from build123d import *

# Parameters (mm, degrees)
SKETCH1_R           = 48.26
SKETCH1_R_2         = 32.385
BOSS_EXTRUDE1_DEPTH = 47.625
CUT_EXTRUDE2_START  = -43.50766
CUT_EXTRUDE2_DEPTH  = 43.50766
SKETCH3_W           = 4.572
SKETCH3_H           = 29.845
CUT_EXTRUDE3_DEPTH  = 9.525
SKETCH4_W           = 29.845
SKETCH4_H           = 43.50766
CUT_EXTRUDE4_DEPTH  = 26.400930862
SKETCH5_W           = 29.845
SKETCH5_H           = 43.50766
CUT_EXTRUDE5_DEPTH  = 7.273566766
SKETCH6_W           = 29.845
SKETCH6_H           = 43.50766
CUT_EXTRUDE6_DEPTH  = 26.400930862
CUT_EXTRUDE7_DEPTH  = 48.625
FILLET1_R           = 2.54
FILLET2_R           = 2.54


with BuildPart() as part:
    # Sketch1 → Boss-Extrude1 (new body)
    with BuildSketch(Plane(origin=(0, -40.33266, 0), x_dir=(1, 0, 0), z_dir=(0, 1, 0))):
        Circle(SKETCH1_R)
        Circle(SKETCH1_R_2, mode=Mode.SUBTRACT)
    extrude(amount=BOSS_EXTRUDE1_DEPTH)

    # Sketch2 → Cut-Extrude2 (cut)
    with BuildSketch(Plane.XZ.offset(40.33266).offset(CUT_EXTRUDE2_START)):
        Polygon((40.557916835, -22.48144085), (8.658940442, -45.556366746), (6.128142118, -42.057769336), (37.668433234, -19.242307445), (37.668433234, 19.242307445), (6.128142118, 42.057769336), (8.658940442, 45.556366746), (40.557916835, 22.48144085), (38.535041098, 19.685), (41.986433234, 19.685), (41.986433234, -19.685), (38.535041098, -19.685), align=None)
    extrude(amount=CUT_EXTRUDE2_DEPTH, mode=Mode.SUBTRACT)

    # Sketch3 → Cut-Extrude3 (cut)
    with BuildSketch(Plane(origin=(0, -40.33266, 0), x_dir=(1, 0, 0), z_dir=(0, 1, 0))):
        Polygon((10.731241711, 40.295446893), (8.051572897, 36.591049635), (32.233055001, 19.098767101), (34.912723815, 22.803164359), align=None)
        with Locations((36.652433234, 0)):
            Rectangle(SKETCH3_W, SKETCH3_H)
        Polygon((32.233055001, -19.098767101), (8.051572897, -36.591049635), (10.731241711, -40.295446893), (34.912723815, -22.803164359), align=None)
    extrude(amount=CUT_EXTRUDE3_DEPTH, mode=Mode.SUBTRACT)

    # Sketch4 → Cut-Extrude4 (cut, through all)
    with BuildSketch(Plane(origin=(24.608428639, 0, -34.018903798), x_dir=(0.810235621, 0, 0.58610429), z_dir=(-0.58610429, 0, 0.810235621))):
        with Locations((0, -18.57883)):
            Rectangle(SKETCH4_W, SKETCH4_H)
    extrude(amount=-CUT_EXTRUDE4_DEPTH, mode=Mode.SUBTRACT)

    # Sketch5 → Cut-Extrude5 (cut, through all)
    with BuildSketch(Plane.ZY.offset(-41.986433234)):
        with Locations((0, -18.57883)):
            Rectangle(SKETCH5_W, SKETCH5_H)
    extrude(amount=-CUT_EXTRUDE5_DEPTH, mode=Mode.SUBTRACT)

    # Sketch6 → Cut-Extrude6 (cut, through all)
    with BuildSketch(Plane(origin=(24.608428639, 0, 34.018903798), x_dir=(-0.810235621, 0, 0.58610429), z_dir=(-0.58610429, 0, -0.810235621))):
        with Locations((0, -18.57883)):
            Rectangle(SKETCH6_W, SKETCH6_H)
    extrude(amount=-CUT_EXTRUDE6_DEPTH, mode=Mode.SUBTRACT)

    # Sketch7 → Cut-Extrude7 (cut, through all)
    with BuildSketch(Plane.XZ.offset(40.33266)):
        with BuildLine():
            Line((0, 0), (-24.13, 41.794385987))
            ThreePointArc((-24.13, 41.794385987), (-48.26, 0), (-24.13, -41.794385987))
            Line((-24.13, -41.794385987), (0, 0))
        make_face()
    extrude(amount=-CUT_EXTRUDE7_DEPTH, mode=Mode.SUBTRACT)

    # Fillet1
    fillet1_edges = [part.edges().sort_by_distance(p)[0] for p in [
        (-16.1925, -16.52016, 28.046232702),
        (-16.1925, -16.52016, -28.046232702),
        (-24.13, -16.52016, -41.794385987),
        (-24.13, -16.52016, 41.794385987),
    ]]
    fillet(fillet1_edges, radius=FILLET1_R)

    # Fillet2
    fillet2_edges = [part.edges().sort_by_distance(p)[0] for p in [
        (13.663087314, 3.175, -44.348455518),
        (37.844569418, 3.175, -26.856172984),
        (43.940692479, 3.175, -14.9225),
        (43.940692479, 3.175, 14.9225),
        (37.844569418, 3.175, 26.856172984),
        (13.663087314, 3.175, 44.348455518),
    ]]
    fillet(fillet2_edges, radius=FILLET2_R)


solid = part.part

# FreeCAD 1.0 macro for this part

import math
import FreeCAD as App
import Part
import Sketcher
Q = App.Units.Quantity


def edges_at(feature, points):
    """Names of the edges that pass closest to the given points."""
    edges = feature.Shape.Edges
    near = lambda p: min(range(len(edges)), key=lambda i: edges[i].distToShape(Part.Vertex(*p))[0])
    return sorted({f"Edge{near(p) + 1}" for p in points})


def add_polygon(sketch, points):
    """Adds a closed chain of lines whose ends are joined by coincident constraints."""
    first, n = sketch.GeometryCount, len(points)
    for a, b in zip(points, points[1:] + points[:1]):
        sketch.addGeometry(Part.LineSegment(App.Vector(*a, 0), App.Vector(*b, 0)), False)
    for i in range(n):
        sketch.addConstraint(Sketcher.Constraint("Coincident", first + i, 2, first + (i + 1) % n, 1))

doc = App.newDocument("Part")
params = doc.addObject("Spreadsheet::Sheet", "Params")
for row, (alias, value) in enumerate([
    ("sketch1_diameter", "3.8 in"),
    ("sketch1_diameter2", "2.55 in"),
    ("pad1_length", "1.875 in"),
    ("sketch2_height", "1.55 in"),
    ("sketch2_length", "1.55 in"),
    ("sketch2_length2", "0.17 in"),
    ("pocket1_length", "1.7129 in"),
    ("sketch3_width", "0.18 in"),
    ("sketch3_length", "0.18 in"),
    ("sketch3_height", "1.175 in"),
    ("sketch3_length2", "1.175 in"),
    ("pocket2_length", "0.375 in"),
    ("sketch4_width", "1.175 in"),
    ("sketch5_height", "1.175 in"),
    ("sketch6_width", "1.175 in"),
    ("sketch7_radius", "1.9 in"),
    ("fillet_radius", "0.1 in"),
    ("fillet2_radius", "0.1 in"),
], start=1):
    params.set(f"A{row}", alias)
    params.set(f"B{row}", "=" + value)
    params.setAlias(f"B{row}", alias)

body = doc.addObject("PartDesign::Body", "Body")

# Sketch on XZ plane
sketch1 = doc.addObject("Sketcher::SketchObject", "Sketch")
body.addObject(sketch1)
sketch1.AttachmentSupport = (doc.XZ_Plane, [""])
sketch1.MapMode = "FlatFace"
sketch1.AttachmentOffset = App.Placement(App.Vector(0, 0, 1.5879 * 25.4), App.Rotation())
sketch1.addGeometry(Part.Circle(App.Vector(0, 0, 0), App.Vector(0, 0, 1), 48.26), False)
sketch1.addGeometry(Part.Circle(App.Vector(0, 0, 0), App.Vector(0, 0, 1), 32.385), False)
sketch1.addConstraint(Sketcher.Constraint("Coincident", 0, 3, -1, 1))
sketch1.addConstraint(Sketcher.Constraint("Coincident", 1, 3, -1, 1))
sketch1.addConstraint(Sketcher.Constraint("Diameter", 0, Q("3.8 in")))
sketch1.addConstraint(Sketcher.Constraint("Diameter", 1, Q("2.55 in")))
sketch1.setExpression("Constraints[2]", "Params.sketch1_diameter")
sketch1.setExpression("Constraints[3]", "Params.sketch1_diameter2")
pad1 = doc.addObject("PartDesign::Pad", "Pad")
body.addObject(pad1)
pad1.Profile = sketch1
pad1.setExpression("Length", "Params.pad1_length")
pad1.Reversed = True

# Sketch on XZ plane
sketch2 = doc.addObject("Sketcher::SketchObject", "Sketch001")
body.addObject(sketch2)
sketch2.AttachmentSupport = (doc.XZ_Plane, [""])
sketch2.MapMode = "FlatFace"
sketch2.AttachmentOffset = App.Placement(App.Vector(0, 0, -0.125 * 25.4), App.Rotation())
add_polygon(sketch2, [(8.65894, -45.556367), (40.557917, -22.481441), (38.535041, -19.685), (41.986433, -19.685), (41.986433, 19.685), (38.535041, 19.685), (40.557917, 22.481441), (8.65894, 45.556367), (6.128142, 42.057769), (37.668433, 19.242307), (37.668433, -19.242307), (6.128142, -42.057769)])  # lines 0-11
sketch2.addConstraint(Sketcher.Constraint("Horizontal", 2))
sketch2.addConstraint(Sketcher.Constraint("Vertical", 3))
sketch2.addConstraint(Sketcher.Constraint("Horizontal", 4))
sketch2.addConstraint(Sketcher.Constraint("Vertical", 9))
sketch2.addConstraint(Sketcher.Constraint("Symmetric", 1, 2, 4, 2, -1))
sketch2.addConstraint(Sketcher.Constraint("Symmetric", 0, 2, 5, 2, -1))
sketch2.addConstraint(Sketcher.Constraint("Symmetric", 7, 2, 10, 2, -1))
sketch2.addConstraint(Sketcher.Constraint("Symmetric", 6, 2, 11, 2, -1))
sketch2.addConstraint(Sketcher.Constraint("Perpendicular", 0, 1))
sketch2.addConstraint(Sketcher.Constraint("Perpendicular", 6, 7))
sketch2.addConstraint(Sketcher.Constraint("Perpendicular", 7, 8))
sketch2.addConstraint(Sketcher.Constraint("Perpendicular", 1, 10))
sketch2.addConstraint(Sketcher.Constraint("DistanceY", 3, 1, 3, 2, Q("1.55 in")))
sketch2.addConstraint(Sketcher.Constraint("Distance", 0, Q("1.55 in")))
sketch2.addConstraint(Sketcher.Constraint("Distance", 7, Q("0.17 in")))
sketch2.addConstraint(Sketcher.Constraint("DistanceX", 8, 2, 3, 2, Q("0.17 in")))
sketch2.addConstraint(Sketcher.Constraint("DistanceX", 6, 2, 4, 2, 29.876101))
sketch2.addConstraint(Sketcher.Constraint("DistanceX", 7, 2, 6, 2, 2.530798))
sketch2.addConstraint(Sketcher.Constraint("DistanceX", 2, 1, 2, 2, 3.451392))
sketch2.addConstraint(Sketcher.Constraint("DistanceX", -1, 1, 1, 2, 38.535041))
sketch2.setExpression("Constraints[24]", "Params.sketch2_height")
sketch2.setExpression("Constraints[25]", "Params.sketch2_length")
sketch2.setExpression("Constraints[26]", "Params.sketch2_length2")
pocket1 = doc.addObject("PartDesign::Pocket", "Pocket")
body.addObject(pocket1)
pocket1.Profile = sketch2
pocket1.setExpression("Length", "Params.pocket1_length")
pocket1.Reversed = True

# Sketch on XZ plane
sketch3 = doc.addObject("Sketcher::SketchObject", "Sketch002")
body.addObject(sketch3)
sketch3.AttachmentSupport = (doc.XZ_Plane, [""])
sketch3.MapMode = "FlatFace"
sketch3.AttachmentOffset = App.Placement(App.Vector(0, 0, 1.5879 * 25.4), App.Rotation())
add_polygon(sketch3, [(10.731242, -40.295447), (8.051573, -36.59105), (32.233055, -19.098767), (34.912724, -22.803164)])  # lines 0-3
add_polygon(sketch3, [(34.366433, -14.9225), (34.366433, 14.9225), (38.938433, 14.9225), (38.938433, -14.9225)])  # lines 4-7
add_polygon(sketch3, [(32.233055, 19.098767), (8.051573, 36.59105), (10.731242, 40.295447), (34.912724, 22.803164)])  # lines 8-11
sketch3.addConstraint(Sketcher.Constraint("Vertical", 4))
sketch3.addConstraint(Sketcher.Constraint("Horizontal", 5))
sketch3.addConstraint(Sketcher.Constraint("Vertical", 6))
sketch3.addConstraint(Sketcher.Constraint("Horizontal", 7))
sketch3.addConstraint(Sketcher.Constraint("Symmetric", 0, 2, 8, 2, -1))
sketch3.addConstraint(Sketcher.Constraint("Symmetric", 3, 2, 9, 2, -1))
sketch3.addConstraint(Sketcher.Constraint("Symmetric", 2, 2, 10, 2, -1))
sketch3.addConstraint(Sketcher.Constraint("Symmetric", 1, 2, 11, 2, -1))
sketch3.addConstraint(Sketcher.Constraint("Perpendicular", 0, 1))
sketch3.addConstraint(Sketcher.Constraint("Perpendicular", 1, 2))
sketch3.addConstraint(Sketcher.Constraint("Perpendicular", 2, 3))
sketch3.addConstraint(Sketcher.Constraint("DistanceX", 5, 1, 5, 2, Q("0.18 in")))
sketch3.addConstraint(Sketcher.Constraint("Distance", 0, Q("0.18 in")))
sketch3.addConstraint(Sketcher.Constraint("DistanceY", 4, 1, 4, 2, Q("1.175 in")))
sketch3.addConstraint(Sketcher.Constraint("Distance", 1, Q("1.175 in")))
sketch3.addConstraint(Sketcher.Constraint("DistanceY", -1, 1, 4, 2, Q("0.5875 in")))
sketch3.addConstraint(Sketcher.Constraint("DistanceY", 0, 2, -1, 1, 36.59105))
sketch3.addConstraint(Sketcher.Constraint("DistanceX", -1, 1, 3, 2, 10.731242))
sketch3.addConstraint(Sketcher.Constraint("DistanceX", 1, 2, 2, 2, 2.679669))
sketch3.addConstraint(Sketcher.Constraint("DistanceX", 1, 2, 4, 2, 2.133378))
sketch3.setExpression("Constraints[23]", "Params.sketch3_width")
sketch3.setExpression("Constraints[24]", "Params.sketch3_length")
sketch3.setExpression("Constraints[25]", "Params.sketch3_height")
sketch3.setExpression("Constraints[26]", "Params.sketch3_length2")
pocket2 = doc.addObject("PartDesign::Pocket", "Pocket001")
body.addObject(pocket2)
pocket2.Profile = sketch3
pocket2.setExpression("Length", "Params.pocket2_length")

# Sketch on an angled plane
sketch4 = doc.addObject("Sketcher::SketchObject", "Sketch003")
body.addObject(sketch4)
sketch4.Placement = App.Placement(App.Vector(24.608429, 0, -34.018904), App.Rotation(App.Vector(0.810235621, 0, 0.58610429), App.Vector(0, 1, 0), App.Vector(-0.58610429, 0, 0.810235621), "ZXY"))
add_polygon(sketch4, [(-14.9225, 3.175), (-14.9225, -40.33266), (14.9225, -40.33266), (14.9225, 3.175)])  # lines 0-3
sketch4.addConstraint(Sketcher.Constraint("Vertical", 0))
sketch4.addConstraint(Sketcher.Constraint("Horizontal", 1))
sketch4.addConstraint(Sketcher.Constraint("Vertical", 2))
sketch4.addConstraint(Sketcher.Constraint("Horizontal", 3))
sketch4.addConstraint(Sketcher.Constraint("DistanceX", 1, 1, 1, 2, Q("1.175 in")))
sketch4.addConstraint(Sketcher.Constraint("DistanceY", 0, 2, 0, 1, Q("1.7129 in")))
sketch4.addConstraint(Sketcher.Constraint("DistanceY", -1, 1, 2, 2, Q("0.125 in")))
sketch4.addConstraint(Sketcher.Constraint("DistanceX", 0, 2, -1, 1, Q("0.5875 in")))
sketch4.setExpression("Constraints[8]", "Params.sketch4_width")
pocket3 = doc.addObject("PartDesign::Pocket", "Pocket002")
body.addObject(pocket3)
pocket3.Profile = sketch4
pocket3.Type = "ThroughAll"

# Sketch on YZ plane
sketch5 = doc.addObject("Sketcher::SketchObject", "Sketch004")
body.addObject(sketch5)
sketch5.AttachmentSupport = (doc.YZ_Plane, [""])
sketch5.MapMode = "FlatFace"
sketch5.AttachmentOffset = App.Placement(App.Vector(0, 0, 41.986433), App.Rotation())
add_polygon(sketch5, [(3.175, -14.9225), (-40.33266, -14.9225), (-40.33266, 14.9225), (3.175, 14.9225)])  # lines 0-3
sketch5.addConstraint(Sketcher.Constraint("Horizontal", 0))
sketch5.addConstraint(Sketcher.Constraint("Vertical", 1))
sketch5.addConstraint(Sketcher.Constraint("Horizontal", 2))
sketch5.addConstraint(Sketcher.Constraint("Vertical", 3))
sketch5.addConstraint(Sketcher.Constraint("DistanceY", 1, 1, 1, 2, Q("1.175 in")))
sketch5.addConstraint(Sketcher.Constraint("DistanceX", 0, 2, 0, 1, Q("1.7129 in")))
sketch5.addConstraint(Sketcher.Constraint("DistanceX", -1, 1, 2, 2, Q("0.125 in")))
sketch5.addConstraint(Sketcher.Constraint("DistanceY", 0, 2, -1, 1, Q("0.5875 in")))
sketch5.setExpression("Constraints[8]", "Params.sketch5_height")
pocket4 = doc.addObject("PartDesign::Pocket", "Pocket003")
body.addObject(pocket4)
pocket4.Profile = sketch5
pocket4.Type = "ThroughAll"
pocket4.Reversed = True

# Sketch on an angled plane
sketch6 = doc.addObject("Sketcher::SketchObject", "Sketch005")
body.addObject(sketch6)
sketch6.Placement = App.Placement(App.Vector(24.608429, 0, 34.018904), App.Rotation(App.Vector(-0.810235621, 0, 0.58610429), App.Vector(0, 1, 0), App.Vector(-0.58610429, 0, -0.810235621), "ZXY"))
add_polygon(sketch6, [(-14.9225, 3.175), (-14.9225, -40.33266), (14.9225, -40.33266), (14.9225, 3.175)])  # lines 0-3
sketch6.addConstraint(Sketcher.Constraint("Vertical", 0))
sketch6.addConstraint(Sketcher.Constraint("Horizontal", 1))
sketch6.addConstraint(Sketcher.Constraint("Vertical", 2))
sketch6.addConstraint(Sketcher.Constraint("Horizontal", 3))
sketch6.addConstraint(Sketcher.Constraint("DistanceX", 1, 1, 1, 2, Q("1.175 in")))
sketch6.addConstraint(Sketcher.Constraint("DistanceY", 0, 2, 0, 1, Q("1.7129 in")))
sketch6.addConstraint(Sketcher.Constraint("DistanceY", -1, 1, 2, 2, Q("0.125 in")))
sketch6.addConstraint(Sketcher.Constraint("DistanceX", 0, 2, -1, 1, Q("0.5875 in")))
sketch6.setExpression("Constraints[8]", "Params.sketch6_width")
pocket5 = doc.addObject("PartDesign::Pocket", "Pocket004")
body.addObject(pocket5)
pocket5.Profile = sketch6
pocket5.Type = "ThroughAll"

# Sketch on XZ plane
sketch7 = doc.addObject("Sketcher::SketchObject", "Sketch006")
body.addObject(sketch7)
sketch7.AttachmentSupport = (doc.XZ_Plane, [""])
sketch7.MapMode = "FlatFace"
sketch7.AttachmentOffset = App.Placement(App.Vector(0, 0, 1.5879 * 25.4), App.Rotation())
sketch7.addGeometry(Part.LineSegment(App.Vector(0, 0, 0), App.Vector(-24.13, 41.794386, 0)), False)
sketch7.addGeometry(Part.ArcOfCircle(Part.Circle(App.Vector(0, 0, 0), App.Vector(0, 0, 1), 48.26), math.radians(120), math.radians(240)), False)
sketch7.addGeometry(Part.LineSegment(App.Vector(-24.13, -41.794386, 0), App.Vector(0, 0, 0)), False)
sketch7.addConstraint(Sketcher.Constraint("Coincident", 0, 2, 1, 1))
sketch7.addConstraint(Sketcher.Constraint("Coincident", 1, 2, 2, 1))
sketch7.addConstraint(Sketcher.Constraint("Coincident", 2, 2, 0, 1))
sketch7.addConstraint(Sketcher.Constraint("Coincident", 1, 3, -1, 1))
sketch7.addConstraint(Sketcher.Constraint("Coincident", 2, 2, -1, 1))
sketch7.addConstraint(Sketcher.Constraint("Vertical", 0, 2, 1, 2))
sketch7.addConstraint(Sketcher.Constraint("Radius", 1, Q("1.9 in")))
sketch7.addConstraint(Sketcher.Constraint("Angle", 0, Q("120 deg")))
sketch7.setExpression("Constraints[6]", "Params.sketch7_radius")
pocket6 = doc.addObject("PartDesign::Pocket", "Pocket005")
body.addObject(pocket6)
pocket6.Profile = sketch7
pocket6.Type = "ThroughAll"
doc.recompute()

fillet = doc.addObject("PartDesign::Fillet", "Fillet")
body.addObject(fillet)
fillet.Base = (pocket6, edges_at(pocket6, [
    (-16.192, -16.52, 28.046),
    (-16.192, -16.52, -28.046),
    (-24.13, -16.52, -41.794),
    (-24.13, -16.52, 41.794),
]))
fillet.setExpression("Radius", "Params.fillet_radius")
doc.recompute()

fillet2 = doc.addObject("PartDesign::Fillet", "Fillet001")
body.addObject(fillet2)
fillet2.Base = (fillet, edges_at(fillet, [
    (13.663, 3.175, -44.348),
    (37.845, 3.175, -26.856),
    (43.941, 3.175, -14.922),
    (43.941, 3.175, 14.922),
    (37.845, 3.175, 26.856),
    (13.663, 3.175, 44.348),
]))
fillet2.setExpression("Radius", "Params.fillet2_radius")

doc.recompute()
